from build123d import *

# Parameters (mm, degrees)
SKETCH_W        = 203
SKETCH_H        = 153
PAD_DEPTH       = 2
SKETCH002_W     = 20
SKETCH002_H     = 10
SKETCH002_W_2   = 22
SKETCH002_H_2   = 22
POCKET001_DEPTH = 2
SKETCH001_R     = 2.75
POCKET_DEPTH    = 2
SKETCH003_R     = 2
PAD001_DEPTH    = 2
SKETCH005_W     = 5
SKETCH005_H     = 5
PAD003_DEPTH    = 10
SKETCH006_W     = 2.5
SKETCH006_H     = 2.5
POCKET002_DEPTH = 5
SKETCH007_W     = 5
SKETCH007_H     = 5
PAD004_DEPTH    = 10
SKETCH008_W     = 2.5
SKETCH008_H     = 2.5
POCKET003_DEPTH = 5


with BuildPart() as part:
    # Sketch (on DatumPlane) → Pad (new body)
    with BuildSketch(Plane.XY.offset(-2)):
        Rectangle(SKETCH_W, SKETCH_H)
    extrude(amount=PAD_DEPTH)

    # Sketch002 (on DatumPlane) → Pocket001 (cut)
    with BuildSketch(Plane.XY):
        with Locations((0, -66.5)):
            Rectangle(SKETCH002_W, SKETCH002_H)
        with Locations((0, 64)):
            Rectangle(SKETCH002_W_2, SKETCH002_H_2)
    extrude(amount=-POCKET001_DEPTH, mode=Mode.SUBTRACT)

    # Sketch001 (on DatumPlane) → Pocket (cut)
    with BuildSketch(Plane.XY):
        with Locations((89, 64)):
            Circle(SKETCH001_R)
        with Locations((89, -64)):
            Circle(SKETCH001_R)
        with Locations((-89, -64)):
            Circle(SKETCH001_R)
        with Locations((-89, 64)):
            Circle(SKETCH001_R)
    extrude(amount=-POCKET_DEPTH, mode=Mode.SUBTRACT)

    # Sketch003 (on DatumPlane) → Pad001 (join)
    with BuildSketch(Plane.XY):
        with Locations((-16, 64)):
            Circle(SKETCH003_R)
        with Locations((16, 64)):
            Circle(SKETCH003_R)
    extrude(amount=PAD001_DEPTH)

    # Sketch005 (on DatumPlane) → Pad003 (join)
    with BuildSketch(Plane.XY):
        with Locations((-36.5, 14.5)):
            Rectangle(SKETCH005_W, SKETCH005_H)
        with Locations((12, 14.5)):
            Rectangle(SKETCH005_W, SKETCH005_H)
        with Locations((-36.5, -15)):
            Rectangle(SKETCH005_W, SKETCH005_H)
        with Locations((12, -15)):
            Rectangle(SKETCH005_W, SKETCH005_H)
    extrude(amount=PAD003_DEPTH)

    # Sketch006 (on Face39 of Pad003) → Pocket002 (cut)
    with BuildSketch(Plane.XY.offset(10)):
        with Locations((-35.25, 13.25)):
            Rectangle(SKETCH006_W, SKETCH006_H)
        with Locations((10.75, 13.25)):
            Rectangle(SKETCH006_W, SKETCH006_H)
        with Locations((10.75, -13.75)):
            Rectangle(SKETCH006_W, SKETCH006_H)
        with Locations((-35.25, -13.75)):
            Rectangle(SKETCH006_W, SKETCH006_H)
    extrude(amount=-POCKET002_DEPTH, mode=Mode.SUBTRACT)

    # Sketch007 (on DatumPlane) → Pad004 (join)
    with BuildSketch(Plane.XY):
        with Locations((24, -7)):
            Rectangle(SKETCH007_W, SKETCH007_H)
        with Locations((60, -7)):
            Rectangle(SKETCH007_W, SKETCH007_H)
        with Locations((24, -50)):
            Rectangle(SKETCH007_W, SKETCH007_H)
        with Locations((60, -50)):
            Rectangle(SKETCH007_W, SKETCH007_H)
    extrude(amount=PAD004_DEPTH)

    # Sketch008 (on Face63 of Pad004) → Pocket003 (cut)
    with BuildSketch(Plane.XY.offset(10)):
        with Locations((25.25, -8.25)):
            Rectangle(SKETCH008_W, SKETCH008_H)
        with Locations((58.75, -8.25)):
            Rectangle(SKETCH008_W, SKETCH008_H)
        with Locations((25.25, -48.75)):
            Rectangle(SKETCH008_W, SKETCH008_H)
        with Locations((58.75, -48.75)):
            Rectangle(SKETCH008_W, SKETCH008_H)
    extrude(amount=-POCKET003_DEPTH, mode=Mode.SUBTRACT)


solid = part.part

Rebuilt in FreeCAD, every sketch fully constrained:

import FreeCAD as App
import Part
import Sketcher
Q = App.Units.Quantity


def add_polygon(sketch, points):
    """Adds a closed chain of lines whose ends are joined by coincident constraints."""
    first, n = sketch.GeometryCount, len(points)
    for a, b in zip(points, points[1:] + points[:1]):
        sketch.addGeometry(Part.LineSegment(App.Vector(*a, 0), App.Vector(*b, 0)), False)
    for i in range(n):
        sketch.addConstraint(Sketcher.Constraint("Coincident", first + i, 2, first + (i + 1) % n, 1))

doc = App.newDocument("Part")
body = doc.addObject("PartDesign::Body", "Body")

sketch1 = body.newObject("Sketcher::SketchObject", "Sketch")
sketch1.AttachmentSupport = (doc.getObject("XY_Plane"), [""])
sketch1.MapMode = "FlatFace"
sketch1.AttachmentOffset = App.Placement(App.Vector(0, 0, -2), App.Rotation())
add_polygon(sketch1, [(-102, 76), (-102, -76), (102, -76), (102, 76)])
sketch1.addConstraint(Sketcher.Constraint("Vertical", 0))
sketch1.addConstraint(Sketcher.Constraint("Horizontal", 1))
sketch1.addConstraint(Sketcher.Constraint("Vertical", 2))
sketch1.addConstraint(Sketcher.Constraint("Horizontal", 3))
sketch1.addConstraint(Sketcher.Constraint("Symmetric", 0, 2, 2, 2, -1, 1))
sketch1.addConstraint(Sketcher.Constraint("DistanceX", 1, 1, 1, 2, Q("203 mm")))
sketch1.addConstraint(Sketcher.Constraint("DistanceY", 0, 2, 0, 1, Q("153 mm")))
pad1 = body.newObject("PartDesign::Pad", "Pad")
pad1.Profile = sketch1
pad1.Length = 2

sketch2 = body.newObject("Sketcher::SketchObject", "Sketch001")
sketch2.AttachmentSupport = (doc.getObject("XY_Plane"), [""])
sketch2.MapMode = "FlatFace"
add_polygon(sketch2, [(-10, -62), (-10, -72), (10, -72), (10, -62)])
add_polygon(sketch2, [(-11, 75), (-11, 53), (11, 53), (11, 75)])
sketch2.addConstraint(Sketcher.Constraint("Vertical", 0))
sketch2.addConstraint(Sketcher.Constraint("Horizontal", 1))
sketch2.addConstraint(Sketcher.Constraint("Vertical", 2))
sketch2.addConstraint(Sketcher.Constraint("Horizontal", 3))
sketch2.addConstraint(Sketcher.Constraint("Vertical", 4))
sketch2.addConstraint(Sketcher.Constraint("Horizontal", 5))
sketch2.addConstraint(Sketcher.Constraint("Vertical", 6))
sketch2.addConstraint(Sketcher.Constraint("Horizontal", 7))
sketch2.addConstraint(Sketcher.Constraint("Equal", 7, 4))
sketch2.addConstraint(Sketcher.Constraint("DistanceX", 1, 1, 1, 2, Q("20 mm")))
sketch2.addConstraint(Sketcher.Constraint("DistanceX", 5, 1, 5, 2, Q("22 mm")))
sketch2.addConstraint(Sketcher.Constraint("DistanceY", 0, 2, 0, 1, Q("10 mm")))
sketch2.addConstraint(Sketcher.Constraint("DistanceX", 0, 2, -1, 1, Q("10 mm")))
sketch2.addConstraint(Sketcher.Constraint("DistanceX", 4, 2, -1, 1, Q("11 mm")))
sketch2.addConstraint(Sketcher.Constraint("DistanceY", -1, 1, 4, 2, Q("53 mm")))
sketch2.addConstraint(Sketcher.Constraint("DistanceY", 0, 2, -1, 1, Q("71.5 mm")))
pocket1 = body.newObject("PartDesign::Pocket", "Pocket")
pocket1.Profile = sketch2
pocket1.Length = 2

sketch3 = body.newObject("Sketcher::SketchObject", "Sketch002")
sketch3.AttachmentSupport = (doc.getObject("XY_Plane"), [""])
sketch3.MapMode = "FlatFace"
sketch3.addGeometry(Part.Circle(App.Vector(89, 64, 0), App.Vector(0, 0, 1), 2.8), False)
sketch3.addGeometry(Part.Circle(App.Vector(89, -64, 0), App.Vector(0, 0, 1), 2.8), False)
sketch3.addGeometry(Part.Circle(App.Vector(-89, -64, 0), App.Vector(0, 0, 1), 2.8), False)
sketch3.addGeometry(Part.Circle(App.Vector(-89, 64, 0), App.Vector(0, 0, 1), 2.8), False)
sketch3.addConstraint(Sketcher.Constraint("Equal", 0, 1))
sketch3.addConstraint(Sketcher.Constraint("Equal", 1, 2))
sketch3.addConstraint(Sketcher.Constraint("Equal", 2, 3))
sketch3.addConstraint(Sketcher.Constraint("Symmetric", 0, 3, 2, 3, -1, 1))
sketch3.addConstraint(Sketcher.Constraint("Symmetric", 1, 3, 3, 3, -1, 1))
sketch3.addConstraint(Sketcher.Constraint("Symmetric", 1, 3, 2, 3, -2))
sketch3.addConstraint(Sketcher.Constraint("Diameter", 0, Q("5.5 mm")))
sketch3.addConstraint(Sketcher.Constraint("DistanceX", -1, 1, 0, 3, Q("89 mm")))
sketch3.addConstraint(Sketcher.Constraint("DistanceY", -1, 1, 0, 3, Q("64 mm")))
pocket2 = body.newObject("PartDesign::Pocket", "Pocket001")
pocket2.Profile = sketch3
pocket2.Length = 2

sketch4 = body.newObject("Sketcher::SketchObject", "Sketch003")
sketch4.AttachmentSupport = (doc.getObject("XY_Plane"), [""])
sketch4.MapMode = "FlatFace"
sketch4.addGeometry(Part.Circle(App.Vector(-16, 64, 0), App.Vector(0, 0, 1), 2), False)
sketch4.addGeometry(Part.Circle(App.Vector(16, 64, 0), App.Vector(0, 0, 1), 2), False)
sketch4.addConstraint(Sketcher.Constraint("Equal", 0, 1))
sketch4.addConstraint(Sketcher.Constraint("Symmetric", 0, 3, 1, 3, -2))
sketch4.addConstraint(Sketcher.Constraint("Diameter", 0, Q("4 mm")))
sketch4.addConstraint(Sketcher.Constraint("DistanceX", 0, 3, -1, 1, Q("16 mm")))
sketch4.addConstraint(Sketcher.Constraint("DistanceY", -1, 1, 0, 3, Q("64 mm")))
pad2 = body.newObject("PartDesign::Pad", "Pad001")
pad2.Profile = sketch4
pad2.Length = 2

sketch5 = body.newObject("Sketcher::SketchObject", "Sketch004")
sketch5.AttachmentSupport = (doc.getObject("XY_Plane"), [""])
sketch5.MapMode = "FlatFace"
add_polygon(sketch5, [(-39, 17), (-39, 12), (-34, 12), (-34, 17)])
add_polygon(sketch5, [(10, 17), (10, 12), (14, 12), (14, 17)])
add_polygon(sketch5, [(-39, -12), (-39, -18), (-34, -18), (-34, -12)])
add_polygon(sketch5, [(10, -12), (10, -18), (14, -18), (14, -12)])
sketch5.addConstraint(Sketcher.Constraint("Vertical", 0))
sketch5.addConstraint(Sketcher.Constraint("Horizontal", 1))
sketch5.addConstraint(Sketcher.Constraint("Vertical", 2))
sketch5.addConstraint(Sketcher.Constraint("Horizontal", 3))
sketch5.addConstraint(Sketcher.Constraint("Vertical", 4))
sketch5.addConstraint(Sketcher.Constraint("Horizontal", 5))
sketch5.addConstraint(Sketcher.Constraint("Vertical", 6))
sketch5.addConstraint(Sketcher.Constraint("Horizontal", 7))
sketch5.addConstraint(Sketcher.Constraint("Vertical", 8))
sketch5.addConstraint(Sketcher.Constraint("Horizontal", 9))
sketch5.addConstraint(Sketcher.Constraint("Vertical", 10))
sketch5.addConstraint(Sketcher.Constraint("Horizontal", 11))
sketch5.addConstraint(Sketcher.Constraint("Vertical", 12))
sketch5.addConstraint(Sketcher.Constraint("Horizontal", 13))
sketch5.addConstraint(Sketcher.Constraint("Vertical", 14))
sketch5.addConstraint(Sketcher.Constraint("Horizontal", 15))
sketch5.addConstraint(Sketcher.Constraint("Horizontal", 1, 2, 4, 2))
sketch5.addConstraint(Sketcher.Constraint("Horizontal", 3, 2, 6, 2))
sketch5.addConstraint(Sketcher.Constraint("Horizontal", 9, 2, 12, 2))
sketch5.addConstraint(Sketcher.Constraint("Horizontal", 11, 2, 14, 2))
sketch5.addConstraint(Sketcher.Constraint("Vertical", 3, 2, 8, 2))
sketch5.addConstraint(Sketcher.Constraint("Vertical", 2, 2, 9, 2))
sketch5.addConstraint(Sketcher.Constraint("Vertical", 7, 2, 12, 2))
sketch5.addConstraint(Sketcher.Constraint("Vertical", 6, 2, 13, 2))
sketch5.addConstraint(Sketcher.Constraint("Equal", 3, 5))
sketch5.addConstraint(Sketcher.Constraint("Equal", 15, 0))
sketch5.addConstraint(Sketcher.Constraint("Equal", 6, 8))
sketch5.addConstraint(Sketcher.Constraint("DistanceX", 1, 1, 1, 2, Q("5 mm")))
sketch5.addConstraint(Sketcher.Constraint("DistanceX", 0, 2, -1, 1, Q("39 mm")))
sketch5.addConstraint(Sketcher.Constraint("DistanceY", -1, 1, 0, 2, Q("12 mm")))
sketch5.addConstraint(Sketcher.Constraint("DistanceX", -1, 1, 4, 2, Q("9.5 mm")))
sketch5.addConstraint(Sketcher.Constraint("DistanceY", 8, 2, -1, 1, Q("17.5 mm")))
pad3 = body.newObject("PartDesign::Pad", "Pad002")
pad3.Profile = sketch5
pad3.Length = 10

sketch6 = body.newObject("Sketcher::SketchObject", "Sketch005")
sketch6.AttachmentSupport = (doc.getObject("XY_Plane"), [""])
sketch6.MapMode = "FlatFace"
sketch6.AttachmentOffset = App.Placement(App.Vector(0, 0, 10), App.Rotation())
add_polygon(sketch6, [(-36.5, 14.5), (-36.5, 12), (-34, 12), (-34, 14.5)])
add_polygon(sketch6, [(9.5, 14.5), (9.5, 12), (12, 12), (12, 14.5)])
add_polygon(sketch6, [(9.5, -12.5), (9.5, -15), (12, -15), (12, -12.5)])
add_polygon(sketch6, [(-36.5, -12.5), (-36.5, -15), (-34, -15), (-34, -12.5)])
sketch6.addConstraint(Sketcher.Constraint("Vertical", 0))
sketch6.addConstraint(Sketcher.Constraint("Horizontal", 1))
sketch6.addConstraint(Sketcher.Constraint("Vertical", 2))
sketch6.addConstraint(Sketcher.Constraint("Horizontal", 3))
sketch6.addConstraint(Sketcher.Constraint("Vertical", 4))
sketch6.addConstraint(Sketcher.Constraint("Horizontal", 5))
sketch6.addConstraint(Sketcher.Constraint("Vertical", 6))
sketch6.addConstraint(Sketcher.Constraint("Horizontal", 7))
sketch6.addConstraint(Sketcher.Constraint("Vertical", 8))
sketch6.addConstraint(Sketcher.Constraint("Horizontal", 9))
sketch6.addConstraint(Sketcher.Constraint("Vertical", 10))
sketch6.addConstraint(Sketcher.Constraint("Horizontal", 11))
sketch6.addConstraint(Sketcher.Constraint("Vertical", 12))
sketch6.addConstraint(Sketcher.Constraint("Horizontal", 13))
sketch6.addConstraint(Sketcher.Constraint("Vertical", 14))
sketch6.addConstraint(Sketcher.Constraint("Horizontal", 15))
sketch6.addConstraint(Sketcher.Constraint("Horizontal", 1, 2, 4, 2))
sketch6.addConstraint(Sketcher.Constraint("Horizontal", 3, 2, 6, 2))
sketch6.addConstraint(Sketcher.Constraint("Horizontal", 9, 2, 12, 2))
sketch6.addConstraint(Sketcher.Constraint("Horizontal", 11, 2, 14, 2))
sketch6.addConstraint(Sketcher.Constraint("Vertical", 7, 2, 8, 2))
sketch6.addConstraint(Sketcher.Constraint("Vertical", 6, 2, 9, 2))
sketch6.addConstraint(Sketcher.Constraint("Vertical", 3, 2, 12, 2))
sketch6.addConstraint(Sketcher.Constraint("Vertical", 2, 2, 13, 2))
sketch6.addConstraint(Sketcher.Constraint("Equal", 3, 5))
sketch6.addConstraint(Sketcher.Constraint("Equal", 15, 0))
sketch6.addConstraint(Sketcher.Constraint("Equal", 6, 8))
sketch6.addConstraint(Sketcher.Constraint("DistanceX", 1, 1, 1, 2, Q("2.5 mm")))
sketch6.addConstraint(Sketcher.Constraint("DistanceY", -1, 1, 0, 2, Q("12 mm")))
sketch6.addConstraint(Sketcher.Constraint("DistanceX", 1, 2, -1, 1, Q("34 mm")))
sketch6.addConstraint(Sketcher.Constraint("DistanceX", -1, 1, 5, 2, Q("12 mm")))
sketch6.addConstraint(Sketcher.Constraint("DistanceY", 8, 2, -1, 1, Q("15 mm")))
pocket3 = body.newObject("PartDesign::Pocket", "Pocket002")
pocket3.Profile = sketch6
pocket3.Length = 5

sketch7 = body.newObject("Sketcher::SketchObject", "Sketch006")
sketch7.AttachmentSupport = (doc.getObject("XY_Plane"), [""])
sketch7.MapMode = "FlatFace"
add_polygon(sketch7, [(22, -4), (22, -10), (26, -10), (26, -4)])
add_polygon(sketch7, [(58, -4), (58, -10), (62, -10), (62, -4)])
add_polygon(sketch7, [(22, -48), (22, -52), (26, -52), (26, -48)])
add_polygon(sketch7, [(58, -48), (58, -52), (62, -52), (62, -48)])
sketch7.addConstraint(Sketcher.Constraint("Vertical", 0))
sketch7.addConstraint(Sketcher.Constraint("Horizontal", 1))
sketch7.addConstraint(Sketcher.Constraint("Vertical", 2))
sketch7.addConstraint(Sketcher.Constraint("Horizontal", 3))
sketch7.addConstraint(Sketcher.Constraint("Vertical", 4))
sketch7.addConstraint(Sketcher.Constraint("Horizontal", 5))
sketch7.addConstraint(Sketcher.Constraint("Vertical", 6))
sketch7.addConstraint(Sketcher.Constraint("Horizontal", 7))
sketch7.addConstraint(Sketcher.Constraint("Vertical", 8))
sketch7.addConstraint(Sketcher.Constraint("Horizontal", 9))
sketch7.addConstraint(Sketcher.Constraint("Vertical", 10))
sketch7.addConstraint(Sketcher.Constraint("Horizontal", 11))
sketch7.addConstraint(Sketcher.Constraint("Vertical", 12))
sketch7.addConstraint(Sketcher.Constraint("Horizontal", 13))
sketch7.addConstraint(Sketcher.Constraint("Vertical", 14))
sketch7.addConstraint(Sketcher.Constraint("Horizontal", 15))
sketch7.addConstraint(Sketcher.Constraint("Horizontal", 1, 2, 4, 2))
sketch7.addConstraint(Sketcher.Constraint("Horizontal", 3, 2, 6, 2))
sketch7.addConstraint(Sketcher.Constraint("Horizontal", 9, 2, 12, 2))
sketch7.addConstraint(Sketcher.Constraint("Horizontal", 11, 2, 14, 2))
sketch7.addConstraint(Sketcher.Constraint("Vertical", 3, 2, 8, 2))
sketch7.addConstraint(Sketcher.Constraint("Vertical", 2, 2, 9, 2))
sketch7.addConstraint(Sketcher.Constraint("Vertical", 7, 2, 12, 2))
sketch7.addConstraint(Sketcher.Constraint("Vertical", 6, 2, 13, 2))
sketch7.addConstraint(Sketcher.Constraint("Equal", 3, 5))
sketch7.addConstraint(Sketcher.Constraint("Equal", 15, 0))
sketch7.addConstraint(Sketcher.Constraint("Equal", 6, 8))
sketch7.addConstraint(Sketcher.Constraint("DistanceX", 1, 1, 1, 2, Q("5 mm")))
sketch7.addConstraint(Sketcher.Constraint("DistanceX", 1, 2, 4, 2, Q("31 mm")))
sketch7.addConstraint(Sketcher.Constraint("DistanceY", 8, 2, 0, 2, Q("43 mm")))
sketch7.addConstraint(Sketcher.Constraint("DistanceX", -1, 1, 0, 2, Q("21.5 mm")))
sketch7.addConstraint(Sketcher.Constraint("DistanceY", 0, 2, -1, 1, Q("9.5 mm")))
pad4 = body.newObject("PartDesign::Pad", "Pad003")
pad4.Profile = sketch7
pad4.Length = 10

sketch8 = body.newObject("Sketcher::SketchObject", "Sketch007")
sketch8.AttachmentSupport = (doc.getObject("XY_Plane"), [""])
sketch8.MapMode = "FlatFace"
sketch8.AttachmentOffset = App.Placement(App.Vector(0, 0, 10), App.Rotation())
add_polygon(sketch8, [(24, -7), (24, -9.5), (26.5, -9.5), (26.5, -7)])
add_polygon(sketch8, [(57.5, -7), (57.5, -9.5), (60, -9.5), (60, -7)])
add_polygon(sketch8, [(24, -47.5), (24, -50), (26.5, -50), (26.5, -47.5)])
add_polygon(sketch8, [(57.5, -47.5), (57.5, -50), (60, -50), (60, -47.5)])
sketch8.addConstraint(Sketcher.Constraint("Vertical", 0))
sketch8.addConstraint(Sketcher.Constraint("Horizontal", 1))
sketch8.addConstraint(Sketcher.Constraint("Vertical", 2))
sketch8.addConstraint(Sketcher.Constraint("Horizontal", 3))
sketch8.addConstraint(Sketcher.Constraint("Vertical", 4))
sketch8.addConstraint(Sketcher.Constraint("Horizontal", 5))
sketch8.addConstraint(Sketcher.Constraint("Vertical", 6))
sketch8.addConstraint(Sketcher.Constraint("Horizontal", 7))
sketch8.addConstraint(Sketcher.Constraint("Vertical", 8))
sketch8.addConstraint(Sketcher.Constraint("Horizontal", 9))
sketch8.addConstraint(Sketcher.Constraint("Vertical", 10))
sketch8.addConstraint(Sketcher.Constraint("Horizontal", 11))
sketch8.addConstraint(Sketcher.Constraint("Vertical", 12))
sketch8.addConstraint(Sketcher.Constraint("Horizontal", 13))
sketch8.addConstraint(Sketcher.Constraint("Vertical", 14))
sketch8.addConstraint(Sketcher.Constraint("Horizontal", 15))
sketch8.addConstraint(Sketcher.Constraint("Horizontal", 1, 2, 4, 2))
sketch8.addConstraint(Sketcher.Constraint("Horizontal", 3, 2, 6, 2))
sketch8.addConstraint(Sketcher.Constraint("Horizontal", 9, 2, 12, 2))
sketch8.addConstraint(Sketcher.Constraint("Horizontal", 11, 2, 14, 2))
sketch8.addConstraint(Sketcher.Constraint("Vertical", 3, 2, 8, 2))
sketch8.addConstraint(Sketcher.Constraint("Vertical", 2, 2, 9, 2))
sketch8.addConstraint(Sketcher.Constraint("Vertical", 7, 2, 12, 2))
sketch8.addConstraint(Sketcher.Constraint("Vertical", 6, 2, 13, 2))
sketch8.addConstraint(Sketcher.Constraint("Equal", 3, 5))
sketch8.addConstraint(Sketcher.Constraint("Equal", 15, 0))
sketch8.addConstraint(Sketcher.Constraint("Equal", 6, 8))
sketch8.addConstraint(Sketcher.Constraint("DistanceX", 1, 1, 1, 2, Q("2.5 mm")))
sketch8.addConstraint(Sketcher.Constraint("DistanceX", -1, 1, 0, 2, Q("24 mm")))
sketch8.addConstraint(Sketcher.Constraint("DistanceY", 2, 2, -1, 1, Q("7 mm")))
sketch8.addConstraint(Sketcher.Constraint("DistanceX", -1, 1, 5, 2, Q("60 mm")))
sketch8.addConstraint(Sketcher.Constraint("DistanceY", 8, 2, -1, 1, Q("50 mm")))
pocket4 = body.newObject("PartDesign::Pocket", "Pocket003")
pocket4.Profile = sketch8
pocket4.Length = 5

doc.recompute()
